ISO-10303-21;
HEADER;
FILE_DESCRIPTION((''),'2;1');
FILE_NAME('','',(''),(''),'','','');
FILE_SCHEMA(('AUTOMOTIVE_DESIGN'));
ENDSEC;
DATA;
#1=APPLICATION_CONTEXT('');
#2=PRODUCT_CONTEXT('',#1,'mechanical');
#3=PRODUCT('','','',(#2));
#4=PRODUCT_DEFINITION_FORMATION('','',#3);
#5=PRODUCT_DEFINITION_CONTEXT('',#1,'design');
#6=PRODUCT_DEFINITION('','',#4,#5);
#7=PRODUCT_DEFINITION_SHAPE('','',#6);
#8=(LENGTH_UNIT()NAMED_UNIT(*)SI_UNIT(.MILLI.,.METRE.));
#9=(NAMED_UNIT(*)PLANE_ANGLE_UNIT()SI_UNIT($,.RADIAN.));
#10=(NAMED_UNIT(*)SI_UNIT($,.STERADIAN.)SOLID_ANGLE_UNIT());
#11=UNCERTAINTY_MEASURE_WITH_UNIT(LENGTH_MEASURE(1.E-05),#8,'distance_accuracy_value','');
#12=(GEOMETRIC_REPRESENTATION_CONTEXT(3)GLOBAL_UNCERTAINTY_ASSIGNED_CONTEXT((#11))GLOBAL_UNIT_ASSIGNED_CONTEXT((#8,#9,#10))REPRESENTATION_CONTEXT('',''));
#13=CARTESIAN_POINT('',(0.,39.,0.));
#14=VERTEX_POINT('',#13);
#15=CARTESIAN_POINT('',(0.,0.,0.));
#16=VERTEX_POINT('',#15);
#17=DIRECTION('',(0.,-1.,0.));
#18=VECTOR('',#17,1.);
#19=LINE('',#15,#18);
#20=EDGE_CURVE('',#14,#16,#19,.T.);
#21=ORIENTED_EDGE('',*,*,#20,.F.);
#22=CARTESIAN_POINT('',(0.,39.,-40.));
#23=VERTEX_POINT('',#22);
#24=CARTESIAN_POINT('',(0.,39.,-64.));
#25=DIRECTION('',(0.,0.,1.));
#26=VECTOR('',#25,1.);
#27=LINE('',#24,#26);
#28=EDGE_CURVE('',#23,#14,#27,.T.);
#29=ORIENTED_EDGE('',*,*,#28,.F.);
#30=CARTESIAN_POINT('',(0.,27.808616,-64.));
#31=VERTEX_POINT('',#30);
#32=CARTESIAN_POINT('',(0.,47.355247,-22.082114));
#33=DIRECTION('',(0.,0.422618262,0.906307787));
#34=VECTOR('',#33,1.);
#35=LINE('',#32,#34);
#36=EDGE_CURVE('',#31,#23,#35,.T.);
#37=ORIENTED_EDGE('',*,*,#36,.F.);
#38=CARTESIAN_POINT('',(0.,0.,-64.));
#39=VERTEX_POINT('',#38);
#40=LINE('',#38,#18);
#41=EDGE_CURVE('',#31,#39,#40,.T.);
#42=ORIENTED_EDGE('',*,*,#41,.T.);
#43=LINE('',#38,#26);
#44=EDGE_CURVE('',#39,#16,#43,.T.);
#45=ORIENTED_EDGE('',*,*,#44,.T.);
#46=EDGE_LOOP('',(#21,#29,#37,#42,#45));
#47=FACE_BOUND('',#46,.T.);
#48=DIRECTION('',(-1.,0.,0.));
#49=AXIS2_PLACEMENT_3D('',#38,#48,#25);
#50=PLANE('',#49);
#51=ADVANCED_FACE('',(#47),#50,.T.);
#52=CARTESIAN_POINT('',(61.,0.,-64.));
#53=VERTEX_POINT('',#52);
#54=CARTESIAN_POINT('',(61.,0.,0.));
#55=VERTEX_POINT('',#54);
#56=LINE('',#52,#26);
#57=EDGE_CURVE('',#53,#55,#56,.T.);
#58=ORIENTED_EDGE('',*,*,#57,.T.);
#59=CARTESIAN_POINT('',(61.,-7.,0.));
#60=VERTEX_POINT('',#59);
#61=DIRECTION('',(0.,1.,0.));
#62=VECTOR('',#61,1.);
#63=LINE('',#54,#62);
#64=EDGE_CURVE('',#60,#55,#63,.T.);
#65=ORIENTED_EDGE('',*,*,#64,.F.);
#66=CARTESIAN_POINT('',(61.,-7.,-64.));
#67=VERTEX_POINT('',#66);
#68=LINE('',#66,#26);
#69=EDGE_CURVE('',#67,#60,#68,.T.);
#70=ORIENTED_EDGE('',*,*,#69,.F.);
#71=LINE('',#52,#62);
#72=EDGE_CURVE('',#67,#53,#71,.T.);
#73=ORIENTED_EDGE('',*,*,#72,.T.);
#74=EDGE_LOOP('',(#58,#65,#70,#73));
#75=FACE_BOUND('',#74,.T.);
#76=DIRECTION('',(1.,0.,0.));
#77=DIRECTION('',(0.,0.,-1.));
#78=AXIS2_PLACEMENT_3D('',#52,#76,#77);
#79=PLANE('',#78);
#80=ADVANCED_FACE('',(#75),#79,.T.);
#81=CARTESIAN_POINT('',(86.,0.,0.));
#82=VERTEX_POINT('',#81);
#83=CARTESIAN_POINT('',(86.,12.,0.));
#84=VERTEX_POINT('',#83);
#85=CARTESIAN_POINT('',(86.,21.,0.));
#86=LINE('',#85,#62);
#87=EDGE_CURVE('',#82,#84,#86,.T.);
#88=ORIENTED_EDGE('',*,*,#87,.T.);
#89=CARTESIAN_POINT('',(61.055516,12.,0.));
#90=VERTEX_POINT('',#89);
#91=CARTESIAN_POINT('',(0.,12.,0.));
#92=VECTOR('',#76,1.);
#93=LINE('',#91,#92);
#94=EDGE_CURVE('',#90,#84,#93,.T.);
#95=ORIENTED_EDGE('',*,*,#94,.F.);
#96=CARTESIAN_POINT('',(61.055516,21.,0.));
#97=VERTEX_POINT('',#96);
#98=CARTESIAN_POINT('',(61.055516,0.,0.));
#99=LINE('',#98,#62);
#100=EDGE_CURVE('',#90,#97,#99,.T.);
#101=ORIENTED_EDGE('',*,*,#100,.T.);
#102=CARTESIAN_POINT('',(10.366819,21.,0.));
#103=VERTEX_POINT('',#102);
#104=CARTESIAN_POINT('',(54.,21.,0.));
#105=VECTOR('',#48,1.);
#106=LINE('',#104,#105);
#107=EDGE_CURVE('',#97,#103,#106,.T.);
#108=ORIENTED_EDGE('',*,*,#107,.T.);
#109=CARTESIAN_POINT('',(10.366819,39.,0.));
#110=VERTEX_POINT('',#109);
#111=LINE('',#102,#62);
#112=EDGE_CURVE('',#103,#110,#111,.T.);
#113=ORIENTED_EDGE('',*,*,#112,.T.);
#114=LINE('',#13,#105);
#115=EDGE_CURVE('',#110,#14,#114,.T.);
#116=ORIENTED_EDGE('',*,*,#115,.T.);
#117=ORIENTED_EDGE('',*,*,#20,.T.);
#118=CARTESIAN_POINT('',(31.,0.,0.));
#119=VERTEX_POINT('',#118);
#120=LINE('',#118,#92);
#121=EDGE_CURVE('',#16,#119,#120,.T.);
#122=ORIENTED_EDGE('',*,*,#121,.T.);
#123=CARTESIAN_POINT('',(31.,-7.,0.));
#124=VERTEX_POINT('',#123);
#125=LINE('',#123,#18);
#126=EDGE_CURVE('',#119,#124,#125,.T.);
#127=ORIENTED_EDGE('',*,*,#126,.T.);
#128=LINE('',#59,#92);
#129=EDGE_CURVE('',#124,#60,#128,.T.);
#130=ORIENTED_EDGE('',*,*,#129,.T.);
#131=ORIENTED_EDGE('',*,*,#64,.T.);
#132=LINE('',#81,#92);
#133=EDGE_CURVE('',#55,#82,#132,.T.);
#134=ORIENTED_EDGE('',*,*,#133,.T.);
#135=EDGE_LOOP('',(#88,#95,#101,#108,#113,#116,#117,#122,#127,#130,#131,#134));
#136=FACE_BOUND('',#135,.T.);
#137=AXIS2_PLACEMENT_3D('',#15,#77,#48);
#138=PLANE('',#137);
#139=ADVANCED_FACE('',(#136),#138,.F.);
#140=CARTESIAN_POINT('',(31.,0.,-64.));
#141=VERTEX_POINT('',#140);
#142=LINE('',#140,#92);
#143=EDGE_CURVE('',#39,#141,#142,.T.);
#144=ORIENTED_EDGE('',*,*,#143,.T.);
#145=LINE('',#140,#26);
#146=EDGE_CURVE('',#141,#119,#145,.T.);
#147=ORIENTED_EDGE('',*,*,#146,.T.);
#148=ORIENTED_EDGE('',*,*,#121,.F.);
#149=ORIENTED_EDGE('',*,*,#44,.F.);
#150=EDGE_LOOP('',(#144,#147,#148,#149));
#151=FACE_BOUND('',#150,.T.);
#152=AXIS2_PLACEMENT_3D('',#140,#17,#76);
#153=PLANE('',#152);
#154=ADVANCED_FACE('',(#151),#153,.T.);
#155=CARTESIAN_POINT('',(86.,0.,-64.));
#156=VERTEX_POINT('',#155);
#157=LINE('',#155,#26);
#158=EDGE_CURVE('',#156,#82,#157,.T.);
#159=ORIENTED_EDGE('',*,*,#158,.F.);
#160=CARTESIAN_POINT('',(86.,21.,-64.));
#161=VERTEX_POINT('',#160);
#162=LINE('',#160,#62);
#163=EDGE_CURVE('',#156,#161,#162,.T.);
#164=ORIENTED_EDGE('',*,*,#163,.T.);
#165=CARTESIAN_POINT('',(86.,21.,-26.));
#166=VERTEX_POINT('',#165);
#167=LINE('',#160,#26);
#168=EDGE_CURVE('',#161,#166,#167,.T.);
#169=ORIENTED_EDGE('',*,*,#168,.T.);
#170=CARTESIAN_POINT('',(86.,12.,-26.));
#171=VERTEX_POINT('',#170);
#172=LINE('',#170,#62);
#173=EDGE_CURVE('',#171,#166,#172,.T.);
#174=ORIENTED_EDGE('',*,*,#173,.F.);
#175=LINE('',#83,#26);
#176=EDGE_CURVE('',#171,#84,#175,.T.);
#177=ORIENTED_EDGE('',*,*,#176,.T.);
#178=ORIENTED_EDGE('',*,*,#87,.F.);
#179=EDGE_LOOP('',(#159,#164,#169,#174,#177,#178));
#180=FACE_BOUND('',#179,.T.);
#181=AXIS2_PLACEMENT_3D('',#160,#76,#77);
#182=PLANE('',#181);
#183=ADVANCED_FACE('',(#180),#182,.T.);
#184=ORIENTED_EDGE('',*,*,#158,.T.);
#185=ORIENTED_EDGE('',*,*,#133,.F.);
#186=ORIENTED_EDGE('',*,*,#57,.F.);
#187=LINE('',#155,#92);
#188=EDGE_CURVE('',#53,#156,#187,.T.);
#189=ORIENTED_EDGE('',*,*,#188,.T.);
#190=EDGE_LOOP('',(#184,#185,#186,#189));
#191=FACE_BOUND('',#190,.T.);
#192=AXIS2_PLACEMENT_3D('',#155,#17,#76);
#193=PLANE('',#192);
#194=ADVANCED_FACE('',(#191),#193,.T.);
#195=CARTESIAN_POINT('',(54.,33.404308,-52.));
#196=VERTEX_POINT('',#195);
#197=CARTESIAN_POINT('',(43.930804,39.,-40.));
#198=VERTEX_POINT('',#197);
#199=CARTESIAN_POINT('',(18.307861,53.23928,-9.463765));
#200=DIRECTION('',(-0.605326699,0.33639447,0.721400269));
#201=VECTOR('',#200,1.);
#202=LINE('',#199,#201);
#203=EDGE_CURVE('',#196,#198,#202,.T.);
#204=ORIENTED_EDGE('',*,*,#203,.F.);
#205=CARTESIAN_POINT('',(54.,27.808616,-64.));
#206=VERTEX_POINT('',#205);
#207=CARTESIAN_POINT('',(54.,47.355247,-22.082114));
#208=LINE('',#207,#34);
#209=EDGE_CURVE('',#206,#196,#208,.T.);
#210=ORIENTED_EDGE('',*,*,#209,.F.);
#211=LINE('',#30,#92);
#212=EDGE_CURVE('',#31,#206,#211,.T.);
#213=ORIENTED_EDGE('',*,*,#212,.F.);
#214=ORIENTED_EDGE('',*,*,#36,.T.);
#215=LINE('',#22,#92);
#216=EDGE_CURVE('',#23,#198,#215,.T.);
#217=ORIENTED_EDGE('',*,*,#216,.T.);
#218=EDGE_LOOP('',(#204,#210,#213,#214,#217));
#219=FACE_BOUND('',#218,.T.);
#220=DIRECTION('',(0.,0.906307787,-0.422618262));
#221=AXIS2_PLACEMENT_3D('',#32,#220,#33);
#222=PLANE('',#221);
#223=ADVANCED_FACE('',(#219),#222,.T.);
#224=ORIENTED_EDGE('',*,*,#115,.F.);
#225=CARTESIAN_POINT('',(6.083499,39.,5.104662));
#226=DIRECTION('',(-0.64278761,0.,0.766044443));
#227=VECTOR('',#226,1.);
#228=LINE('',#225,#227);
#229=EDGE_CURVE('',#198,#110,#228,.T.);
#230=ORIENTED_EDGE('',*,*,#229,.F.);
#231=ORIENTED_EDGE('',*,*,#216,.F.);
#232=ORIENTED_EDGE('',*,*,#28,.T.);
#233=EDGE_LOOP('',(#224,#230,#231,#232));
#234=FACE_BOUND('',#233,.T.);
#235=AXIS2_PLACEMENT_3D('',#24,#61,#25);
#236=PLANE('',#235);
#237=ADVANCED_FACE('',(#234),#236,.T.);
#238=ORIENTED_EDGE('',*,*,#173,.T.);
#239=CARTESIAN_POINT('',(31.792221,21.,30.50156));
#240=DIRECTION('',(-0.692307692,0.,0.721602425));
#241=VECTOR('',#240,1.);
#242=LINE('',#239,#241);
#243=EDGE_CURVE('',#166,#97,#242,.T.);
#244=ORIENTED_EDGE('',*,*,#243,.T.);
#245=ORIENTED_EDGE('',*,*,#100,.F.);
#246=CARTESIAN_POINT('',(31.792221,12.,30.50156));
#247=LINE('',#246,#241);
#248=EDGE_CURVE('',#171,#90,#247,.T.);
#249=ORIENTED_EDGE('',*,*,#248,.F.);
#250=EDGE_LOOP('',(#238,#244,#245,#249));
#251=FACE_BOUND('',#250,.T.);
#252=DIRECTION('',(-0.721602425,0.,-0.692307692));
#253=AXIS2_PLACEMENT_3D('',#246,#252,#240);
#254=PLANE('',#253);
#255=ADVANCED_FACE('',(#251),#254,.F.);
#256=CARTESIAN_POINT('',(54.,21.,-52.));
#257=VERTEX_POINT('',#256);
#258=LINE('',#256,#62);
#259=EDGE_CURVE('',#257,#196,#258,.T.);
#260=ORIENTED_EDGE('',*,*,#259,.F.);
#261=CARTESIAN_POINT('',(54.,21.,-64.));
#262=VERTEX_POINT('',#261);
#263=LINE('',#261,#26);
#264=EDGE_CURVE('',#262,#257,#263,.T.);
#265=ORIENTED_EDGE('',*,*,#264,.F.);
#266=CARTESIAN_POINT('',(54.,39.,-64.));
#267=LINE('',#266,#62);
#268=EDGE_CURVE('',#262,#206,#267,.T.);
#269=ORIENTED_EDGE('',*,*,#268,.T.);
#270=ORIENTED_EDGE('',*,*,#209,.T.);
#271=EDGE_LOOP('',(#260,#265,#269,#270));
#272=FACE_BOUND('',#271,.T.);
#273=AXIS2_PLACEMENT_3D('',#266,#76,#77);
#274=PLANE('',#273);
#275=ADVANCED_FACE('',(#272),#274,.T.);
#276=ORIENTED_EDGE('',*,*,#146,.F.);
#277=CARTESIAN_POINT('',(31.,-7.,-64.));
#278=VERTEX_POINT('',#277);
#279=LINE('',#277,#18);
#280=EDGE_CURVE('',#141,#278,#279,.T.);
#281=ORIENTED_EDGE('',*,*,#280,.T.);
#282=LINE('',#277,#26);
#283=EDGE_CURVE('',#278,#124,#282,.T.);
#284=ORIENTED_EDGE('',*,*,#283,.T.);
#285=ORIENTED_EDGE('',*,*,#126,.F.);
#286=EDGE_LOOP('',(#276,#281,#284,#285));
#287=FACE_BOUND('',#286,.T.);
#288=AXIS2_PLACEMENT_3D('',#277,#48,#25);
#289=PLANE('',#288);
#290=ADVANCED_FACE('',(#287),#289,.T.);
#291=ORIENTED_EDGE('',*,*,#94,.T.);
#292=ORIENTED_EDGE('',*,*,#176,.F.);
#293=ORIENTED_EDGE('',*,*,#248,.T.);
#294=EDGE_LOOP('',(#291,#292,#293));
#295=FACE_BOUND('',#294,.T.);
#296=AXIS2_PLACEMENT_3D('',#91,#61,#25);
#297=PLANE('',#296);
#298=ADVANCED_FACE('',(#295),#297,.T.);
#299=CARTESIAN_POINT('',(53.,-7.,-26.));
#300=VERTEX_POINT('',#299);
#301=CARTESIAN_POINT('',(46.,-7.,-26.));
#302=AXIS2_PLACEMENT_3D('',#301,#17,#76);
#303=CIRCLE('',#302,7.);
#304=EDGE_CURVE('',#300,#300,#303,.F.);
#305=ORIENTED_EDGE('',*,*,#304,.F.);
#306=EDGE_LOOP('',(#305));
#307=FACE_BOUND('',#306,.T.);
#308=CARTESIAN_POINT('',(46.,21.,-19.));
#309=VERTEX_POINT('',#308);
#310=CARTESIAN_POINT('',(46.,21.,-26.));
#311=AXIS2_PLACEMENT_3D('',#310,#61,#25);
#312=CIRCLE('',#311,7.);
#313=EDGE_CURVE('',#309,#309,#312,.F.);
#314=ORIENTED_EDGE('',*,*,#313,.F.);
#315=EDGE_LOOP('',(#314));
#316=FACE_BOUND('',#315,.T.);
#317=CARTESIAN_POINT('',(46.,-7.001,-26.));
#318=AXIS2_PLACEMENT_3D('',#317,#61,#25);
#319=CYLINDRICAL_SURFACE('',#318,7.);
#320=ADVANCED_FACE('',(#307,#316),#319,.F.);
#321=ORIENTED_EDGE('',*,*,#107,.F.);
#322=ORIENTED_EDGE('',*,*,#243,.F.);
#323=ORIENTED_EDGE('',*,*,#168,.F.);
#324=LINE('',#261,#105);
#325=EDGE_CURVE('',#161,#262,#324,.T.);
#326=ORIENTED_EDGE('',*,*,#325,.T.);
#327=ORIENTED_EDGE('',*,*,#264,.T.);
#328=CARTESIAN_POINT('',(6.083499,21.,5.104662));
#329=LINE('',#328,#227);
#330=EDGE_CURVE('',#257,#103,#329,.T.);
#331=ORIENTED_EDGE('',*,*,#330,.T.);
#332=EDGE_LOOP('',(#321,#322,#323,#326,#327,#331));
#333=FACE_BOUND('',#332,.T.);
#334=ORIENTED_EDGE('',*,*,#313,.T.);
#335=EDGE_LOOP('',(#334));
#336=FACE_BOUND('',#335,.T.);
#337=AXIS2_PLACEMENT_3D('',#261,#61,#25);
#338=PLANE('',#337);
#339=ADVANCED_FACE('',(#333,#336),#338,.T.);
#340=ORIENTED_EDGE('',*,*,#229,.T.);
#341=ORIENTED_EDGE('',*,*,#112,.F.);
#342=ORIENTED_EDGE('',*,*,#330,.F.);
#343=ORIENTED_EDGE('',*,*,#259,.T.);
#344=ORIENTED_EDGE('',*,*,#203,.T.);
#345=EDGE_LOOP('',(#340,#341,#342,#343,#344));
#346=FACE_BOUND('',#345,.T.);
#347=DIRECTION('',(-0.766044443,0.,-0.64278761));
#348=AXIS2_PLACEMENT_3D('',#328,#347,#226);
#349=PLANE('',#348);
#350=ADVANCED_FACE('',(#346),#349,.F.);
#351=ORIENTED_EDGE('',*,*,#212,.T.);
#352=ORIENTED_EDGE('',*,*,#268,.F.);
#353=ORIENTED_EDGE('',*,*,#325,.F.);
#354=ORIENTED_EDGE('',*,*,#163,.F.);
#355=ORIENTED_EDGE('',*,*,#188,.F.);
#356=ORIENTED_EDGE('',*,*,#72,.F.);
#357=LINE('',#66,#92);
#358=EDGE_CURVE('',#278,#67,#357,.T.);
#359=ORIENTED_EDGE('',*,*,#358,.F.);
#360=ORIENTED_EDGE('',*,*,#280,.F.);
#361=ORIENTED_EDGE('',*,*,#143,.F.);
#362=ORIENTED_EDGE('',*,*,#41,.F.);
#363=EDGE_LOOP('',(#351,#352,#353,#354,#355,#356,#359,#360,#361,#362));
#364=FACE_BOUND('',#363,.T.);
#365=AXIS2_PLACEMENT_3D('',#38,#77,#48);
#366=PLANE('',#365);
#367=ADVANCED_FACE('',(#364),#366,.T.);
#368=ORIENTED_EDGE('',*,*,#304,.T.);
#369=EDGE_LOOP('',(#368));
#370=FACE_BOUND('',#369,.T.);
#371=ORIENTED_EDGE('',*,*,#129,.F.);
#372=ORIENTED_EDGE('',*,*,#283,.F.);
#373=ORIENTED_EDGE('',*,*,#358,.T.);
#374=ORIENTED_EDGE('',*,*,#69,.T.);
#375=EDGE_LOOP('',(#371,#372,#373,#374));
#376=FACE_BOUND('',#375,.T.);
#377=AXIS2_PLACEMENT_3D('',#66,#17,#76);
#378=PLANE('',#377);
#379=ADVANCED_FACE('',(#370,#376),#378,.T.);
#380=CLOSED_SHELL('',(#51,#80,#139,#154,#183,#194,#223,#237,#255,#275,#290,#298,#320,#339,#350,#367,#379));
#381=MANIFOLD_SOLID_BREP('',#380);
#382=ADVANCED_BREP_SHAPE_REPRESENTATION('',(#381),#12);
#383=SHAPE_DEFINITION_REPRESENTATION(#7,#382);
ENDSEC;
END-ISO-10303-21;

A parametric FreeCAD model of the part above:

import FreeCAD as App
import Part
import Sketcher

V = App.Vector
Q = App.Units.Quantity

doc = App.newDocument("Part")
params = doc.addObject("Spreadsheet::Sheet", "Params")
for row, (alias, value) in enumerate([
    ("sketch1_width", "31 mm"),
    ("sketch1_width2", "30 mm"),
    ("sketch1_width3", "25 mm"),
    ("sketch1_width4", "32 mm"),
    ("sketch1_height", "39 mm"),
    ("pad1_length", "64 mm"),
    ("sketch2_height", "24 mm"),
    ("sketch3_diameter", "14 mm"),
    ("sketch3_height", "52 mm"),
    ("pocket2_length", "18 mm"),
    ("sketch4_diameter", "14 mm"),
    ("sketch5_width", "25 mm"),
    ("pocket4_length", "9 mm"),
], start=1):
    params.set(f"A{row}", alias)
    params.set(f"B{row}", "=" + value)
    params.setAlias(f"B{row}", alias)

body = doc.addObject("PartDesign::Body", "Body")

# Sketch on XY plane
sketch1 = doc.addObject("Sketcher::SketchObject", "Sketch")
body.addObject(sketch1)
sketch1.AttachmentSupport = (doc.XY_Plane, [""])
sketch1.MapMode = "FlatFace"
sketch1.addGeometry([
    Part.LineSegment(V(0, 39, 0), V(0, 0, 0)),  # 0
    Part.LineSegment(V(0, 0, 0), V(31, 0, 0)),  # 1
    Part.LineSegment(V(31, 0, 0), V(31, -7, 0)),  # 2
    Part.LineSegment(V(31, -7, 0), V(61, -7, 0)),  # 3
    Part.LineSegment(V(61, -7, 0), V(61, 0, 0)),  # 4
    Part.LineSegment(V(61, 0, 0), V(86, 0, 0)),  # 5
    Part.LineSegment(V(86, 0, 0), V(86, 21, 0)),  # 6
    Part.LineSegment(V(86, 21, 0), V(54, 21, 0)),  # 7
    Part.LineSegment(V(54, 21, 0), V(54, 39, 0)),  # 8
    Part.LineSegment(V(54, 39, 0), V(0, 39, 0)),  # 9
], False)
sketch1.addConstraint([
    Sketcher.Constraint("Coincident", 0, 2, 1, 1),
    Sketcher.Constraint("Coincident", 1, 2, 2, 1),
    Sketcher.Constraint("Coincident", 2, 2, 3, 1),
    Sketcher.Constraint("Coincident", 3, 2, 4, 1),
    Sketcher.Constraint("Coincident", 4, 2, 5, 1),
    Sketcher.Constraint("Coincident", 5, 2, 6, 1),
    Sketcher.Constraint("Coincident", 6, 2, 7, 1),
    Sketcher.Constraint("Coincident", 7, 2, 8, 1),
    Sketcher.Constraint("Coincident", 8, 2, 9, 1),
    Sketcher.Constraint("Coincident", 9, 2, 0, 1),
    Sketcher.Constraint("Vertical", 0),
    Sketcher.Constraint("Horizontal", 1),
    Sketcher.Constraint("Vertical", 2),
    Sketcher.Constraint("Horizontal", 3),
    Sketcher.Constraint("Vertical", 4),
    Sketcher.Constraint("Horizontal", 5),
    Sketcher.Constraint("Vertical", 6),
    Sketcher.Constraint("Horizontal", 7),
    Sketcher.Constraint("Vertical", 8),
    Sketcher.Constraint("Horizontal", 9),
    Sketcher.Constraint("Coincident", 0, 2, -1, 1),
    Sketcher.Constraint("PointOnObject", 4, 2, -1),
    Sketcher.Constraint("DistanceX", 1, 1, 1, 2, Q("31 mm")),
    Sketcher.Constraint("DistanceX", 3, 1, 3, 2, Q("30 mm")),
    Sketcher.Constraint("DistanceX", 5, 1, 5, 2, Q("25 mm")),
    Sketcher.Constraint("DistanceX", 7, 2, 7, 1, Q("32 mm")),
    Sketcher.Constraint("DistanceY", 0, 2, 0, 1, Q("39 mm")),
    Sketcher.Constraint("DistanceY", 2, 2, 2, 1, Q("7 mm")),
    Sketcher.Constraint("DistanceY", 6, 1, 6, 2, Q("21 mm")),
])
sketch1.setExpression("Constraints[22]", "Params.sketch1_width")
sketch1.setExpression("Constraints[23]", "Params.sketch1_width2")
sketch1.setExpression("Constraints[24]", "Params.sketch1_width3")
sketch1.setExpression("Constraints[25]", "Params.sketch1_width4")
sketch1.setExpression("Constraints[26]", "Params.sketch1_height")
pad1 = doc.addObject("PartDesign::Pad", "Pad")
body.addObject(pad1)
pad1.Profile = sketch1
pad1.setExpression("Length", "Params.pad1_length")
pad1.Reversed = True

# Sketch on YZ plane
sketch2 = doc.addObject("Sketcher::SketchObject", "Sketch001")
body.addObject(sketch2)
sketch2.AttachmentSupport = (doc.YZ_Plane, [""])
sketch2.MapMode = "FlatFace"
sketch2.AttachmentOffset = App.Placement(V(0, 0, 54), App.Rotation())
sketch2.addGeometry([
    Part.LineSegment(V(39, -40, 0), V(28, -64, 0)),
    Part.LineSegment(V(28, -64, 0), V(39, -64, 0)),
    Part.LineSegment(V(39, -64, 0), V(39, -40, 0)),
], False)
sketch2.addConstraint([
    Sketcher.Constraint("Coincident", 0, 2, 1, 1),
    Sketcher.Constraint("Coincident", 1, 2, 2, 1),
    Sketcher.Constraint("Coincident", 2, 2, 0, 1),
    Sketcher.Constraint("Horizontal", 1),
    Sketcher.Constraint("Vertical", 2),
    Sketcher.Constraint("DistanceY", 2, 1, 2, 2, Q("24 mm")),
    Sketcher.Constraint("Angle", 0, Q("-115 deg")),
    Sketcher.Constraint("DistanceY", 0, 2, -1, 1, Q("64 mm")),
    Sketcher.Constraint("DistanceX", -1, 1, 1, 2, Q("39 mm")),
])
sketch2.setExpression("Constraints[5]", "Params.sketch2_height")
pocket1 = doc.addObject("PartDesign::Pocket", "Pocket")
body.addObject(pocket1)
pocket1.Profile = sketch2
pocket1.Type = "ThroughAll"

# Sketch on XZ plane
sketch3 = doc.addObject("Sketcher::SketchObject", "Sketch002")
body.addObject(sketch3)
sketch3.AttachmentSupport = (doc.XZ_Plane, [""])
sketch3.MapMode = "FlatFace"
sketch3.AttachmentOffset = App.Placement(V(0, 0, -39), App.Rotation())
sketch3.addGeometry([
    Part.LineSegment(V(54, -52, 0), V(44, -40, 0)),  # 0
    Part.LineSegment(V(44, -40, 0), V(10, 0, 0)),  # 1
    Part.LineSegment(V(10, 0, 0), V(54, 0, 0)),  # 2
    Part.LineSegment(V(54, 0, 0), V(54, -52, 0)),  # 3
    Part.Circle(V(46, -26, 0), V(0, 0, 1), 7),  # 4
], False)
sketch3.addConstraint([
    Sketcher.Constraint("Coincident", 0, 2, 1, 1),
    Sketcher.Constraint("Coincident", 1, 2, 2, 1),
    Sketcher.Constraint("Coincident", 2, 2, 3, 1),
    Sketcher.Constraint("Coincident", 3, 2, 0, 1),
    Sketcher.Constraint("Horizontal", 2),
    Sketcher.Constraint("Vertical", 3),
    Sketcher.Constraint("PointOnObject", 1, 2, -1),
    Sketcher.Constraint("Parallel", 0, 1),
    Sketcher.Constraint("Diameter", 4, Q("14 mm")),
    Sketcher.Constraint("DistanceY", 3, 2, 3, 1, Q("52 mm")),
    Sketcher.Constraint("Angle", 0, Q("130 deg")),
    Sketcher.Constraint("DistanceX", -1, 1, 4, 3, Q("46 mm")),
    Sketcher.Constraint("DistanceY", 4, 3, -1, 1, Q("26 mm")),
    Sketcher.Constraint("DistanceY", 0, 2, -1, 1, Q("40 mm")),
    Sketcher.Constraint("DistanceX", -1, 1, 2, 2, Q("54 mm")),
])
sketch3.setExpression("Constraints[8]", "Params.sketch3_diameter")
sketch3.setExpression("Constraints[9]", "Params.sketch3_height")
pocket2 = doc.addObject("PartDesign::Pocket", "Pocket001")
body.addObject(pocket2)
pocket2.Profile = sketch3
pocket2.setExpression("Length", "Params.pocket2_length")
pocket2.Reversed = True

# Sketch on XZ plane
sketch4 = doc.addObject("Sketcher::SketchObject", "Sketch003")
body.addObject(sketch4)
sketch4.AttachmentSupport = (doc.XZ_Plane, [""])
sketch4.MapMode = "FlatFace"
sketch4.AttachmentOffset = App.Placement(V(0, 0, -39), App.Rotation())
sketch4.addGeometry(Part.Circle(V(46, -26, 0), V(0, 0, 1), 7), False)
sketch4.addConstraint([
    Sketcher.Constraint("Diameter", 0, Q("14 mm")),
    Sketcher.Constraint("DistanceX", -1, 1, 0, 3, Q("46 mm")),
    Sketcher.Constraint("DistanceY", 0, 3, -1, 1, Q("26 mm")),
])
sketch4.setExpression("Constraints[0]", "Params.sketch4_diameter")
pocket3 = doc.addObject("PartDesign::Pocket", "Pocket002")
body.addObject(pocket3)
pocket3.Profile = sketch4
pocket3.Type = "UpToFirst"
pocket3.Reversed = True

# Sketch on XZ plane
sketch5 = doc.addObject("Sketcher::SketchObject", "Sketch004")
body.addObject(sketch5)
sketch5.AttachmentSupport = (doc.XZ_Plane, [""])
sketch5.MapMode = "FlatFace"
sketch5.AttachmentOffset = App.Placement(V(0, 0, -21), App.Rotation())
sketch5.addGeometry([
    Part.LineSegment(V(86, 0, 0), V(86, -26, 0)),
    Part.LineSegment(V(86, -26, 0), V(61, 0, 0)),
    Part.LineSegment(V(61, 0, 0), V(86, 0, 0)),
], False)
sketch5.addConstraint([
    Sketcher.Constraint("Coincident", 0, 2, 1, 1),
    Sketcher.Constraint("Coincident", 1, 2, 2, 1),
    Sketcher.Constraint("Coincident", 2, 2, 0, 1),
    Sketcher.Constraint("Vertical", 0),
    Sketcher.Constraint("Horizontal", 2),
    Sketcher.Constraint("DistanceX", 2, 1, 2, 2, Q("25 mm")),
    Sketcher.Constraint("DistanceX", -1, 1, 0, 2, Q("86 mm")),
    Sketcher.Constraint("DistanceY", 0, 2, -1, 1, Q("26 mm")),
    Sketcher.Constraint("Distance", 1, Q("36.111111 mm")),
])
sketch5.setExpression("Constraints[5]", "Params.sketch5_width")
pocket4 = doc.addObject("PartDesign::Pocket", "Pocket003")
body.addObject(pocket4)
pocket4.Profile = sketch5
pocket4.setExpression("Length", "Params.pocket4_length")
pocket4.Reversed = True

doc.recompute()
